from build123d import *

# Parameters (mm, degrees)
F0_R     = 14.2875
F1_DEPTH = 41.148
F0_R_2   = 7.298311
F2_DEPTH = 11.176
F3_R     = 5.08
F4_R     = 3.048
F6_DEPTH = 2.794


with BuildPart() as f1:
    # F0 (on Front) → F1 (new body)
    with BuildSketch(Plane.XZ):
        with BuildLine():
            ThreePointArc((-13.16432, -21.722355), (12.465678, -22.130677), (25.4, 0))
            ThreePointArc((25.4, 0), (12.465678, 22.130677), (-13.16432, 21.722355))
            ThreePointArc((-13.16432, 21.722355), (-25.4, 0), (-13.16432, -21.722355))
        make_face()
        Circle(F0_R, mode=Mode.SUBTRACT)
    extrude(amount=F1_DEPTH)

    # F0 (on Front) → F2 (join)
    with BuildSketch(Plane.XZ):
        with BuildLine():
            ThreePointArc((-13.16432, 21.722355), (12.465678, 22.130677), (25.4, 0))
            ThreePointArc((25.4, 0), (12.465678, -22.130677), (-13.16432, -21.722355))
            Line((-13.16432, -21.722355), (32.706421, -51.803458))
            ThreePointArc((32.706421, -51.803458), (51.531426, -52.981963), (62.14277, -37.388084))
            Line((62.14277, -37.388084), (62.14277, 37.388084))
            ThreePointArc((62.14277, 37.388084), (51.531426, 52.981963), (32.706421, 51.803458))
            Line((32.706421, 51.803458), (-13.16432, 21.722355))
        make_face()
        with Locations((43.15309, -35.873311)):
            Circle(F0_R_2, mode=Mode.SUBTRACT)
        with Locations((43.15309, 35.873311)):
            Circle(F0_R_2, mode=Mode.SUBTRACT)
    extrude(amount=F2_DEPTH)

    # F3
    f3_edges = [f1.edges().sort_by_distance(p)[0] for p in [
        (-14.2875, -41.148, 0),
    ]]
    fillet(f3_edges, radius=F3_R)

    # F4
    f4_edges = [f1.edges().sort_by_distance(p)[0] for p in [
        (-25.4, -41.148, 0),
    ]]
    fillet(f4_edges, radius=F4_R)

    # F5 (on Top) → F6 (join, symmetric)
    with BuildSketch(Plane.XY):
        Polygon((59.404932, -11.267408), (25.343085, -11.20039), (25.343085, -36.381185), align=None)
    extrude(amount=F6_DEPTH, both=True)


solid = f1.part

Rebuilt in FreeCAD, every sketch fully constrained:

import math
import FreeCAD as App
import Part
import Sketcher
Q = App.Units.Quantity


def edges_at(feature, points):
    """Names of the edges that pass closest to the given points."""
    edges = feature.Shape.Edges
    near = lambda p: min(range(len(edges)), key=lambda i: edges[i].distToShape(Part.Vertex(*p))[0])
    return sorted({f"Edge{near(p) + 1}" for p in points})

doc = App.newDocument("Part")
body = doc.addObject("PartDesign::Body", "Body")

# Sketch on XZ plane
sketch1 = body.newObject("Sketcher::SketchObject", "Sketch")
sketch1.AttachmentSupport = (doc.getObject("XZ_Plane"), [""])
sketch1.MapMode = "FlatFace"
sketch1.addGeometry([
    Part.ArcOfCircle(Part.Circle(App.Vector(0, 0, 0), App.Vector(0, 0, 1), 25), math.radians(-121), math.radians(0)),
    Part.ArcOfCircle(Part.Circle(App.Vector(0, 0, 0), App.Vector(0, 0, 1), 25), math.radians(0), math.radians(121)),
    Part.ArcOfCircle(Part.Circle(App.Vector(0, 0, 0), App.Vector(0, 0, 1), 25), math.radians(121), math.radians(239)),
    Part.Circle(App.Vector(0, 0, 0), App.Vector(0, 0, 1), 14),
], False)
sketch1.addConstraint([
    Sketcher.Constraint("Tangent", 0, 2, 1, 1),
    Sketcher.Constraint("Tangent", 1, 2, 2, 1),
    Sketcher.Constraint("Tangent", 2, 2, 0, 1),
    Sketcher.Constraint("Coincident", 0, 3, -1, 1),
    Sketcher.Constraint("Coincident", 3, 3, -1, 1),
    Sketcher.Constraint("PointOnObject", 0, 2, -1),
    Sketcher.Constraint("Vertical", 1, 2, 2, 2),
    Sketcher.Constraint("Radius", 0, Q("1 in")),
    Sketcher.Constraint("Diameter", 3, Q("1.125 in")),
    Sketcher.Constraint("DistanceX", 1, 2, -1, 1, 13.16432),
])
pad1 = body.newObject("PartDesign::Pad", "Pad")
pad1.Profile = sketch1
pad1.Length = Q("1.62 in")

# Sketch on XZ plane
sketch2 = body.newObject("Sketcher::SketchObject", "Sketch001")
sketch2.AttachmentSupport = (doc.getObject("XZ_Plane"), [""])
sketch2.MapMode = "FlatFace"
sketch2.addGeometry([
    Part.ArcOfCircle(Part.Circle(App.Vector(0, 0, 0), App.Vector(0, 0, 1), 25), math.radians(0), math.radians(121)),  # 0
    Part.ArcOfCircle(Part.Circle(App.Vector(0, 0, 0), App.Vector(0, 0, 1), 25), math.radians(-121), math.radians(0)),  # 1
    Part.LineSegment(App.Vector(-13, -22, 0), App.Vector(33, -52, 0)),  # 2
    Part.ArcOfCircle(Part.Circle(App.Vector(43, -36, 0), App.Vector(0, 0, 1), 19), math.radians(-123), math.radians(-5)),  # 3
    Part.LineSegment(App.Vector(62, -37, 0), App.Vector(62, 37, 0)),  # 4
    Part.ArcOfCircle(Part.Circle(App.Vector(43, 36, 0), App.Vector(0, 0, 1), 19), math.radians(5), math.radians(123)),  # 5
    Part.LineSegment(App.Vector(33, 52, 0), App.Vector(-13, 22, 0)),  # 6
    Part.Circle(App.Vector(43, -36, 0), App.Vector(0, 0, 1), 7),  # 7
    Part.Circle(App.Vector(43, 36, 0), App.Vector(0, 0, 1), 7),  # 8
], False)
sketch2.addConstraint([
    Sketcher.Constraint("Tangent", 0, 1, 1, 2),
    Sketcher.Constraint("Coincident", 1, 1, 2, 1),
    Sketcher.Constraint("Tangent", 2, 2, 3, 1),
    Sketcher.Constraint("Coincident", 3, 2, 4, 1),
    Sketcher.Constraint("Coincident", 4, 2, 5, 1),
    Sketcher.Constraint("Tangent", 5, 2, 6, 1),
    Sketcher.Constraint("Coincident", 6, 2, 0, 2),
    Sketcher.Constraint("Vertical", 4),
    Sketcher.Constraint("Coincident", 0, 3, -1, 1),
    Sketcher.Constraint("Coincident", 7, 3, 3, 3),
    Sketcher.Constraint("Coincident", 8, 3, 5, 3),
    Sketcher.Constraint("Equal", 0, 1),
    Sketcher.Constraint("Equal", 3, 5),
    Sketcher.Constraint("Equal", 7, 8),
    Sketcher.Constraint("Symmetric", 3, 3, 5, 3, -1),
    Sketcher.Constraint("PointOnObject", 0, 1, -1),
    Sketcher.Constraint("Vertical", 1, 1, 6, 2),
    Sketcher.Constraint("Radius", 0, Q("1 in")),
    Sketcher.Constraint("Radius", 3, Q("0.75 in")),
    Sketcher.Constraint("Diameter", 7, 14.596622),
    Sketcher.Constraint("DistanceY", 4, 1, 4, 2, 74.776168),
    Sketcher.Constraint("Distance", 2, 54.854331),
    Sketcher.Constraint("DistanceX", -1, 1, 3, 3, 43.15309),
    Sketcher.Constraint("DistanceY", 3, 3, -1, 1, 35.873311),
])
pad2 = body.newObject("PartDesign::Pad", "Pad001")
pad2.Profile = sketch2
pad2.Length = Q("0.44 in")
doc.recompute()

fillet = body.newObject("PartDesign::Fillet", "Fillet")
fillet.Base = (pad2, edges_at(pad2, [(-14.287, -41.148, 0)]))
fillet.Radius = Q("0.2 in")
doc.recompute()

fillet2 = body.newObject("PartDesign::Fillet", "Fillet001")
fillet2.Base = (fillet, edges_at(fillet, [(-25.4, -41.148, 0)]))
fillet2.Radius = Q("0.12 in")

# Sketch on XY plane
sketch3 = body.newObject("Sketcher::SketchObject", "Sketch002")
sketch3.AttachmentSupport = (doc.getObject("XY_Plane"), [""])
sketch3.MapMode = "FlatFace"
sketch3.addGeometry([
    Part.LineSegment(App.Vector(59, -11, 0), App.Vector(25, -11, 0)),
    Part.LineSegment(App.Vector(25, -11, 0), App.Vector(25, -36, 0)),
    Part.LineSegment(App.Vector(25, -36, 0), App.Vector(59, -11, 0)),
], False)
sketch3.addConstraint([
    Sketcher.Constraint("Coincident", 0, 2, 1, 1),
    Sketcher.Constraint("Coincident", 1, 2, 2, 1),
    Sketcher.Constraint("Coincident", 2, 2, 0, 1),
    Sketcher.Constraint("Vertical", 1),
    Sketcher.Constraint("Distance", 2, 42.319159),
    Sketcher.Constraint("DistanceY", 1, 2, 1, 1, 25.180795),
    Sketcher.Constraint("DistanceY", 0, 2, -1, 1, 11.20039),
    Sketcher.Constraint("Distance", 0, 34.061913),
    Sketcher.Constraint("DistanceX", -1, 1, 0, 2, 25.343085),
])
pad3 = body.newObject("PartDesign::Pad", "Pad002")
pad3.Profile = sketch3
pad3.Length = Q("0.22 in")
pad3.Midplane = True

doc.recompute()
